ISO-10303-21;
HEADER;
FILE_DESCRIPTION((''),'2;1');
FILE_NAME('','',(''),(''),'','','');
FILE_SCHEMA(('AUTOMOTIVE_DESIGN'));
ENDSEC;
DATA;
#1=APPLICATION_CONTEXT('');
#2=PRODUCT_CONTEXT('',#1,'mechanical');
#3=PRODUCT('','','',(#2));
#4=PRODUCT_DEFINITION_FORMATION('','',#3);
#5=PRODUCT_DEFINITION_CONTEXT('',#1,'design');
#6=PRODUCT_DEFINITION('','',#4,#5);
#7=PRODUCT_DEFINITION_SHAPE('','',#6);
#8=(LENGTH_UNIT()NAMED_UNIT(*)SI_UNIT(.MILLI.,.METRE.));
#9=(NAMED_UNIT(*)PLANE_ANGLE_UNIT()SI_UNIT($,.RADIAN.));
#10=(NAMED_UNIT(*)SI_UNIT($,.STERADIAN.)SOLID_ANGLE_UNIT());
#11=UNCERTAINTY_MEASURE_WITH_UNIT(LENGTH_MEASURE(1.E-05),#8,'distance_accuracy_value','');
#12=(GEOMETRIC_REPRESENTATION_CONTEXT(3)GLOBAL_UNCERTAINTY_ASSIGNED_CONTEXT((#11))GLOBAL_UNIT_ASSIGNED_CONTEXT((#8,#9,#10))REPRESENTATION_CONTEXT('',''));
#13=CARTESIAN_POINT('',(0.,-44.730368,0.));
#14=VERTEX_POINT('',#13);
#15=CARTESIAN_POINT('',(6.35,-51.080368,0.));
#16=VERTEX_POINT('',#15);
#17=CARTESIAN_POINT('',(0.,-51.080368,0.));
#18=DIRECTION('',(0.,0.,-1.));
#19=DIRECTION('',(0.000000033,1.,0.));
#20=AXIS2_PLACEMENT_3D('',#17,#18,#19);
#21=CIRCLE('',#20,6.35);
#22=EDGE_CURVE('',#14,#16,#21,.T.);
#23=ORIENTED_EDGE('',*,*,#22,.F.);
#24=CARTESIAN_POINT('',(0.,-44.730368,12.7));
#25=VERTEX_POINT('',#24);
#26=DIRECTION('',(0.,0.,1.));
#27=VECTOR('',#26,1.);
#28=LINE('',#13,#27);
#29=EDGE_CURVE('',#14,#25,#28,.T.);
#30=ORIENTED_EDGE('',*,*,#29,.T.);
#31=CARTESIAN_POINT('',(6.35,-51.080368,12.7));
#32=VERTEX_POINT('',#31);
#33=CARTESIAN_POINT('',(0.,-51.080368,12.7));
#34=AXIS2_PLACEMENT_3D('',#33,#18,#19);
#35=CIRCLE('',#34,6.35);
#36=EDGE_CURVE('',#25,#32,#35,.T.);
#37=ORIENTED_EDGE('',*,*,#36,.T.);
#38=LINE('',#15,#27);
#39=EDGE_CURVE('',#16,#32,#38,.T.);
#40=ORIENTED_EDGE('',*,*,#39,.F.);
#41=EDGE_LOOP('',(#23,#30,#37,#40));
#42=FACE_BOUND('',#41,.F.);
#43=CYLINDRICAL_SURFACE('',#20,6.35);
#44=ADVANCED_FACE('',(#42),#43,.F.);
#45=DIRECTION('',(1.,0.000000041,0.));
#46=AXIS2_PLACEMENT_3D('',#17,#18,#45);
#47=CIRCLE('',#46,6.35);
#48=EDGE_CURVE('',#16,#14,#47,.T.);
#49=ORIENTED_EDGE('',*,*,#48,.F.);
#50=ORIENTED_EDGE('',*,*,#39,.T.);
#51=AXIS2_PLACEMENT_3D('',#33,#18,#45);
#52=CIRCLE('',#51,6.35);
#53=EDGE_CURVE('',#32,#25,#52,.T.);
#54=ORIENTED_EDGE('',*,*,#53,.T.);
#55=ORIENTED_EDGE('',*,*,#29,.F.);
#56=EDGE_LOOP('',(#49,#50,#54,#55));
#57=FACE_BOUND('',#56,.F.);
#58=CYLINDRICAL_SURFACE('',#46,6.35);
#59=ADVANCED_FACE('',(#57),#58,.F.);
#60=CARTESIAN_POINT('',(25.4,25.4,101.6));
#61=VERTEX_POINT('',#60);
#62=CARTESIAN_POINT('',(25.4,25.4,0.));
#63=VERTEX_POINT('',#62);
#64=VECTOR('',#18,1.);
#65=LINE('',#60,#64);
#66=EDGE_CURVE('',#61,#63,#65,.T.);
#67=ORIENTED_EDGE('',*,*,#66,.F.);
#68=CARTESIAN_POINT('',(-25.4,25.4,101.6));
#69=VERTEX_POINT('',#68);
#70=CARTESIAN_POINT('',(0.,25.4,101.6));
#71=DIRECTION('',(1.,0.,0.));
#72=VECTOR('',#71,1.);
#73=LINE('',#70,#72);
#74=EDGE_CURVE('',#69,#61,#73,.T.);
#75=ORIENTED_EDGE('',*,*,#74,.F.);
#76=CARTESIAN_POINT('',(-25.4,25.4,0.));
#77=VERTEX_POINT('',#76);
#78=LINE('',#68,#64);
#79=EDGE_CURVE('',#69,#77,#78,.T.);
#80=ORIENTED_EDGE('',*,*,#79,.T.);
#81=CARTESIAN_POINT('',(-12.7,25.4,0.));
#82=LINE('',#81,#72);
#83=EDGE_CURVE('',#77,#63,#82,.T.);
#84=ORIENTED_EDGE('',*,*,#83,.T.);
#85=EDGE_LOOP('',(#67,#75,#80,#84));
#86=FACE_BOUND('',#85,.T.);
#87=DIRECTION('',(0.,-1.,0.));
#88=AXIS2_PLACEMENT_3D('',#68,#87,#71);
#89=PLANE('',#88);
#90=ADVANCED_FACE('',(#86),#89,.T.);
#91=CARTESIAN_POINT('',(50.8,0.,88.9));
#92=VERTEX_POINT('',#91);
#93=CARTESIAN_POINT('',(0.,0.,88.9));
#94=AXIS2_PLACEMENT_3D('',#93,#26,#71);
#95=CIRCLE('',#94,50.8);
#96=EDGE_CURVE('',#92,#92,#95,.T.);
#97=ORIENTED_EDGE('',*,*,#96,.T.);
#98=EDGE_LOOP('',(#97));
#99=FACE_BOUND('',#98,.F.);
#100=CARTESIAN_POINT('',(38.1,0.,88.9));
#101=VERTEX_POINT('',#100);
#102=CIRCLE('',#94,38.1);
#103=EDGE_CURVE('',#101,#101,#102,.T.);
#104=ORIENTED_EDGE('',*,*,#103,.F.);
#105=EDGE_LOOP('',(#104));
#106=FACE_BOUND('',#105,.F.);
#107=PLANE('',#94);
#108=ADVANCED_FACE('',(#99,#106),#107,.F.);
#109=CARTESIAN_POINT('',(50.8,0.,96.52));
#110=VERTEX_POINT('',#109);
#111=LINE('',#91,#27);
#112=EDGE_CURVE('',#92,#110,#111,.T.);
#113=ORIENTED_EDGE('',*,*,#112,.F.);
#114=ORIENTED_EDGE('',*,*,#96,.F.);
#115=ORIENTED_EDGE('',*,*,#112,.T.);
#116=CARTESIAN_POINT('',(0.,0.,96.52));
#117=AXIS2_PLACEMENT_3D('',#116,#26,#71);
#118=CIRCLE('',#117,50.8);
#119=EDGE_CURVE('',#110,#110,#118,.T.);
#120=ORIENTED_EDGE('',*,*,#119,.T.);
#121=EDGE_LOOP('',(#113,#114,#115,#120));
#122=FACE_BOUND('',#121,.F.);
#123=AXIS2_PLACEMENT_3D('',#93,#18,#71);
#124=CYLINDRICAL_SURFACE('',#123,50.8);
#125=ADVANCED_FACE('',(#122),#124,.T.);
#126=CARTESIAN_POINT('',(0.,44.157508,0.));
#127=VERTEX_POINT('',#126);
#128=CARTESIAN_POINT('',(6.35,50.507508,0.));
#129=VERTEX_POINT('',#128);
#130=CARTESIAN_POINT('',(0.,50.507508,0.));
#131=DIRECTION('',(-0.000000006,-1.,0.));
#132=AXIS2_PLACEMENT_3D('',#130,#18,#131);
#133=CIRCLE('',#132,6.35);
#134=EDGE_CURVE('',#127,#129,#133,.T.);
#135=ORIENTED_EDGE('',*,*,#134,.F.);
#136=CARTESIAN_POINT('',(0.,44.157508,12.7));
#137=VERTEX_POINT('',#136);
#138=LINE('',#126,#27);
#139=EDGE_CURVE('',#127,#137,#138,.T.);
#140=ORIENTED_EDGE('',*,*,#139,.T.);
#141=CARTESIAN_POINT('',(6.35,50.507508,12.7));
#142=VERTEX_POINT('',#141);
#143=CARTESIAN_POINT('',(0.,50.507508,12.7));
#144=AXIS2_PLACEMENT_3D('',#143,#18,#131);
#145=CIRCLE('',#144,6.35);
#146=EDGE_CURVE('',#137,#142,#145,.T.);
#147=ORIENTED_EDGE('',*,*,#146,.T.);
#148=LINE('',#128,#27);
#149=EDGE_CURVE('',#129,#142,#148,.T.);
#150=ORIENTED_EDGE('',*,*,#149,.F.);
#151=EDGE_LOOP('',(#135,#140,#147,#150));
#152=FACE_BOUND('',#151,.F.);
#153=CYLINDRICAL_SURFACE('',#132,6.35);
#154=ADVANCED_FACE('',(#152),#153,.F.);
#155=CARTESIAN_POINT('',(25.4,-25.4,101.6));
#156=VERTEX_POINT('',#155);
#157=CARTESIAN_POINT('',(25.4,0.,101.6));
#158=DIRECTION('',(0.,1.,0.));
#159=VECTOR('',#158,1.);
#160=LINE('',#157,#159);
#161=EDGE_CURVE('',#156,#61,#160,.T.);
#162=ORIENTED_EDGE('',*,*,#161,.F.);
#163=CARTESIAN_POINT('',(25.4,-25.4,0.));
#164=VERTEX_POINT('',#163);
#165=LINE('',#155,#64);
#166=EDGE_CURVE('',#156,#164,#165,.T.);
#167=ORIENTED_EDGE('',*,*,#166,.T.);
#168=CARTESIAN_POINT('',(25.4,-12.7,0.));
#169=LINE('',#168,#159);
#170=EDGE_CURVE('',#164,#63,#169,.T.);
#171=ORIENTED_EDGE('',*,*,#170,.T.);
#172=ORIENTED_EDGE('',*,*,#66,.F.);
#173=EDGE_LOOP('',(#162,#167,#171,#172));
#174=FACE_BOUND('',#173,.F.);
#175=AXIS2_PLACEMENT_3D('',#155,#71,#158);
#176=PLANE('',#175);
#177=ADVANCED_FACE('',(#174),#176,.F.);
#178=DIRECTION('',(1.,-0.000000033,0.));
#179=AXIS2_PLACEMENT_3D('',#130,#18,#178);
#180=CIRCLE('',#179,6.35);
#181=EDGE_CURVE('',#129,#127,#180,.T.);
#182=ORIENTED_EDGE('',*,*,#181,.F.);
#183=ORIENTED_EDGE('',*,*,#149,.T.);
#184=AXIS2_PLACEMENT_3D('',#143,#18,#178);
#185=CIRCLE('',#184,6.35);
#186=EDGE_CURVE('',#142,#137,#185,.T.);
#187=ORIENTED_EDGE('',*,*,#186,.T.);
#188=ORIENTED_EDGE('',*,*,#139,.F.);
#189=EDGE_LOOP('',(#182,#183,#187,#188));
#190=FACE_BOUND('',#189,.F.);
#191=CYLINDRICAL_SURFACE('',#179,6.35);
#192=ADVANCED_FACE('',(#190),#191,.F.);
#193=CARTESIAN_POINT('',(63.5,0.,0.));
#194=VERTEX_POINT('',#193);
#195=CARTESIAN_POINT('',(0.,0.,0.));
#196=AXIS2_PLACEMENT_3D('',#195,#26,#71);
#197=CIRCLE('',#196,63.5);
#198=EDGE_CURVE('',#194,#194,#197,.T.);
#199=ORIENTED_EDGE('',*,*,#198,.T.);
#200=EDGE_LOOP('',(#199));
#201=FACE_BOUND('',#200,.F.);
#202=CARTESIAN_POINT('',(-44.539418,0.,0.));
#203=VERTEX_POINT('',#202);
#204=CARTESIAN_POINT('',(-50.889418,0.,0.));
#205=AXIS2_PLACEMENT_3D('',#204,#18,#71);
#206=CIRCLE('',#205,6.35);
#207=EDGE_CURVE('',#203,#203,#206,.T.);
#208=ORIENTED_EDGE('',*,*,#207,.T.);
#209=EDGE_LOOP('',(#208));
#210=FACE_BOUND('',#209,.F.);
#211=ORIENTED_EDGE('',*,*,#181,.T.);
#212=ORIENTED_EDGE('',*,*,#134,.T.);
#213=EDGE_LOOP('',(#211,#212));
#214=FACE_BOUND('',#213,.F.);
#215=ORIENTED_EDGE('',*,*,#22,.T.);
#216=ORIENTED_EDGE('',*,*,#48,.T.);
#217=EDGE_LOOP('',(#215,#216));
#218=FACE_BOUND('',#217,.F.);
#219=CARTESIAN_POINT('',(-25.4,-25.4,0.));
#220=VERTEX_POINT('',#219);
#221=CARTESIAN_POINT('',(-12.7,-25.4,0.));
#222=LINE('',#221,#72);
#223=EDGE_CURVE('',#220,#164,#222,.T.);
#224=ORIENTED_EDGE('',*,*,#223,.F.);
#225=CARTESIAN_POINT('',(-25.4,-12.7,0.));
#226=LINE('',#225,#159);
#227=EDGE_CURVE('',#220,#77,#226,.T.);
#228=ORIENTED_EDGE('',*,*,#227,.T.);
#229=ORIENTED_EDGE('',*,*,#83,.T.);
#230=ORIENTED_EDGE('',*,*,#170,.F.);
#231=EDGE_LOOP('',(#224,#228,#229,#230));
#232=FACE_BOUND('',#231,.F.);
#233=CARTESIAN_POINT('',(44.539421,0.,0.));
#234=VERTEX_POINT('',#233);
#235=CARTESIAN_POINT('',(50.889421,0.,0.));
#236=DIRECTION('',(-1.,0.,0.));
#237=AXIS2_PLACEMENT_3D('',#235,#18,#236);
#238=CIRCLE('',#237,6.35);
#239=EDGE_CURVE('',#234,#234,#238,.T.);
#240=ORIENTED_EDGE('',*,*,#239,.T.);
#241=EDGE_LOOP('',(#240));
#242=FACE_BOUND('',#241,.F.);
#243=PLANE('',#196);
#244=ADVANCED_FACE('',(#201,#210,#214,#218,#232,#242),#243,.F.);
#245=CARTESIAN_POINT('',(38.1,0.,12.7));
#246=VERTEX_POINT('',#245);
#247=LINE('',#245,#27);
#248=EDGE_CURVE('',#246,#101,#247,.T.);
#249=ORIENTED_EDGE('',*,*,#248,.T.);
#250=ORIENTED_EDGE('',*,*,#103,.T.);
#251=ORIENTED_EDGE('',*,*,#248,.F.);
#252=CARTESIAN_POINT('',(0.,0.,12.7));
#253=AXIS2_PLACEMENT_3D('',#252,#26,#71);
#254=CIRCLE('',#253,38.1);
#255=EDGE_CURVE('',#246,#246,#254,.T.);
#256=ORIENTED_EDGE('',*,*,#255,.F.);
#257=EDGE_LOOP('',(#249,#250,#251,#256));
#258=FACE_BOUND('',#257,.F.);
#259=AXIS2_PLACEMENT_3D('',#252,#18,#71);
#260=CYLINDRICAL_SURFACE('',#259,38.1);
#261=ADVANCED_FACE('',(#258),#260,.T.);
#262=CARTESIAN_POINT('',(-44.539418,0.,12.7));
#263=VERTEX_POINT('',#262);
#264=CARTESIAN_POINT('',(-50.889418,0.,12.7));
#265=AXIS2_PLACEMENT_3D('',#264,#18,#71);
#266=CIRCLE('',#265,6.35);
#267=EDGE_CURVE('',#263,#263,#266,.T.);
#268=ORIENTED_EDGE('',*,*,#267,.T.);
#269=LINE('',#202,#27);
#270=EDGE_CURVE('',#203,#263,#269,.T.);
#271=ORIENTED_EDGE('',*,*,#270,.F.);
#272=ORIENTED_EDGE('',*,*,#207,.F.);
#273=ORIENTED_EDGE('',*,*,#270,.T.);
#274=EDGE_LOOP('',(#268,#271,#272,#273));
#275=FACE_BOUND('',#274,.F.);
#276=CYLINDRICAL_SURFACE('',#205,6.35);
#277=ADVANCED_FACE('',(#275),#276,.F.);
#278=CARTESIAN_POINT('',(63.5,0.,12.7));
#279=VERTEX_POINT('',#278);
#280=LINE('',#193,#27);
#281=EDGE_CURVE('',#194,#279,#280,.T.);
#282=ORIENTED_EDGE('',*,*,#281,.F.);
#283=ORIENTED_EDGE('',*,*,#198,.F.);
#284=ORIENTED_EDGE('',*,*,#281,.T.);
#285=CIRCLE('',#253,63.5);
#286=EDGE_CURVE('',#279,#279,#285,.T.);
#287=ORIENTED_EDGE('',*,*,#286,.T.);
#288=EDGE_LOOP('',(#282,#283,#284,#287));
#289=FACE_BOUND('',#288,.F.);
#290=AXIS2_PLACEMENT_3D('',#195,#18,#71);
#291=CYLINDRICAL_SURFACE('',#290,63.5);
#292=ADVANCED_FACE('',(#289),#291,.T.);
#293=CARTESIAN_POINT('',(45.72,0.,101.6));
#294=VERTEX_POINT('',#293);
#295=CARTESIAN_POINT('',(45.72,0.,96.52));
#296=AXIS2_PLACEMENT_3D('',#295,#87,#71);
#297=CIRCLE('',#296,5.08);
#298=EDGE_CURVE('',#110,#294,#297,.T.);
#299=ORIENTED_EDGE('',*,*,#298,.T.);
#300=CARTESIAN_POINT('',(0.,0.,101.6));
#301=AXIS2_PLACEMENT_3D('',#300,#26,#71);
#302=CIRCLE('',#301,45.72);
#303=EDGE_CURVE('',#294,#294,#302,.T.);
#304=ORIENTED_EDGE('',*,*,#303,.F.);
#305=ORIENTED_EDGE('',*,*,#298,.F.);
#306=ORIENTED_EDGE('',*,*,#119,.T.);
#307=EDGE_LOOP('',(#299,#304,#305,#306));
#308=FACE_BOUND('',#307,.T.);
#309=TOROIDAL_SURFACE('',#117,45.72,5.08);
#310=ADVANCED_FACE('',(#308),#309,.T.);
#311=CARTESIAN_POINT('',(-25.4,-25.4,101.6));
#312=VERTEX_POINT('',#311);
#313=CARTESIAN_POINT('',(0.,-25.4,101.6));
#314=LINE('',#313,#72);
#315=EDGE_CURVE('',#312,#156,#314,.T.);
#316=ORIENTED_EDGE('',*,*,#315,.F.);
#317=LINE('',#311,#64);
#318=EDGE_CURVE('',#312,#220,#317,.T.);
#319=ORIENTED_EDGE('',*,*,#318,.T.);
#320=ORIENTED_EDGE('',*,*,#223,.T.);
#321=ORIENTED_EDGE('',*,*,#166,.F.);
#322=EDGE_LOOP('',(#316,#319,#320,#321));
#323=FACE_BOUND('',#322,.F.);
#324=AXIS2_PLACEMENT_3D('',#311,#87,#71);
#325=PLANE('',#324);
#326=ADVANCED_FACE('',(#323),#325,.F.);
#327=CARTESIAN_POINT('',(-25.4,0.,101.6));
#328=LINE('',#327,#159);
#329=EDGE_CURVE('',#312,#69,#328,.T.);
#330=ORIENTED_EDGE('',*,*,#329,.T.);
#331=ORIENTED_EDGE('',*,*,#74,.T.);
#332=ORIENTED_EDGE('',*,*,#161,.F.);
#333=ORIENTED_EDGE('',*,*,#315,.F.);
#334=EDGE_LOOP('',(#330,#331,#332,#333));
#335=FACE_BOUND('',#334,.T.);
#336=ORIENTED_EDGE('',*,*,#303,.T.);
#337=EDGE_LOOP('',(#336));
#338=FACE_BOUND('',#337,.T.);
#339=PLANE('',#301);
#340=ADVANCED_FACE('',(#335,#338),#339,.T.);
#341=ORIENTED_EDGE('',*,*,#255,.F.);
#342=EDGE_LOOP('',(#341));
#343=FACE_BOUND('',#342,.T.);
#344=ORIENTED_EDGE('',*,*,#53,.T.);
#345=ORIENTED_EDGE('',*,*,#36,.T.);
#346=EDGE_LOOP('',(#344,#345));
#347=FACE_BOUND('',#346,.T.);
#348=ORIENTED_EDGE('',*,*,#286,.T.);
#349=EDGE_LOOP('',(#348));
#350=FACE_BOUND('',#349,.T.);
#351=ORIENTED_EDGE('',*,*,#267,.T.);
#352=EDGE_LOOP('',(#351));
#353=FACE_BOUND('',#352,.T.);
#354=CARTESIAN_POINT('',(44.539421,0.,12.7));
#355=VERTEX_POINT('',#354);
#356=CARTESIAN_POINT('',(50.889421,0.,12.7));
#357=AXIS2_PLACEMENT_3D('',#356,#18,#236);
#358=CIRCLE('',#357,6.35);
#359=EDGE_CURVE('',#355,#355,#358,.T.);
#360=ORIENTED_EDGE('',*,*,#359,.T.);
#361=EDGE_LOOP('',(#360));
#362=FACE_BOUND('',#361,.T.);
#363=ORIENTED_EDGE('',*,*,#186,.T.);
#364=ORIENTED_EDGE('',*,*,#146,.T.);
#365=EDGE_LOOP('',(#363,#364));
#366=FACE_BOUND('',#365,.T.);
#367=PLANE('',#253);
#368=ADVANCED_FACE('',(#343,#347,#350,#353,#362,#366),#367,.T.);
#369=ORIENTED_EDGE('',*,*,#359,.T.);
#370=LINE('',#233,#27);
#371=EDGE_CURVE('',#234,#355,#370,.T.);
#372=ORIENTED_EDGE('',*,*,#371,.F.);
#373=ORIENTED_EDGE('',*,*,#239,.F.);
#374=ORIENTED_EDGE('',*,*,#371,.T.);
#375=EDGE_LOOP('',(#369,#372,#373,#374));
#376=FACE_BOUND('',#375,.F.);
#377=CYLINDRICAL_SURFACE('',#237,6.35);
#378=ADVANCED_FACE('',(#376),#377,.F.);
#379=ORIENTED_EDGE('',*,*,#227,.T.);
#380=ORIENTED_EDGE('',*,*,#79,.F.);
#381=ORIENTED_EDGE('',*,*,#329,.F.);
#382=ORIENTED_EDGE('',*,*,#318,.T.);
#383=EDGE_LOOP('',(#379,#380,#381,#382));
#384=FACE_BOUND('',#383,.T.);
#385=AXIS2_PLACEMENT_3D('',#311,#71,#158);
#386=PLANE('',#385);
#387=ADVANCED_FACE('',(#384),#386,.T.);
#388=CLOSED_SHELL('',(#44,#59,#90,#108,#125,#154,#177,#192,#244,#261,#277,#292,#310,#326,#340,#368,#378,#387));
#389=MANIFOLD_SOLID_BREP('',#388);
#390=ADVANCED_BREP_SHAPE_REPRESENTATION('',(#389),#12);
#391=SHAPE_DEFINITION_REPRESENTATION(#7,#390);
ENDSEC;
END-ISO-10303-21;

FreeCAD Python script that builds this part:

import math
import FreeCAD as App
import Part
import Sketcher
Q = App.Units.Quantity


def edges_at(feature, points):
    """Names of the edges that pass closest to the given points."""
    edges = feature.Shape.Edges
    near = lambda p: min(range(len(edges)), key=lambda i: edges[i].distToShape(Part.Vertex(*p))[0])
    return sorted({f"Edge{near(p) + 1}" for p in points})


def add_polygon(sketch, points):
    """Adds a closed chain of lines whose ends are joined by coincident constraints."""
    first, n = sketch.GeometryCount, len(points)
    for a, b in zip(points, points[1:] + points[:1]):
        sketch.addGeometry(Part.LineSegment(App.Vector(*a, 0), App.Vector(*b, 0)), False)
    for i in range(n):
        sketch.addConstraint(Sketcher.Constraint("Coincident", first + i, 2, first + (i + 1) % n, 1))

doc = App.newDocument("Part")
body = doc.addObject("PartDesign::Body", "Body")

sketch1 = body.newObject("Sketcher::SketchObject", "Sketch")
sketch1.AttachmentSupport = (doc.getObject("XY_Plane"), [""])
sketch1.MapMode = "FlatFace"
sketch1.addGeometry(Part.Circle(App.Vector(0, 0, 0), App.Vector(0, 0, 1), 64), False)
sketch1.addConstraint([
    Sketcher.Constraint("Coincident", 0, 3, -1, 1),
    Sketcher.Constraint("Diameter", 0, Q("5 in")),
])
pad1 = body.newObject("PartDesign::Pad", "Pad")
pad1.Profile = sketch1
pad1.Length = Q("0.5 in")

sketch2 = body.newObject("Sketcher::SketchObject", "Sketch001")
sketch2.AttachmentSupport = (doc.getObject("XY_Plane"), [""])
sketch2.MapMode = "FlatFace"
sketch2.AttachmentOffset = App.Placement(App.Vector(0, 0, 0.5 * 25.4), App.Rotation())
sketch2.addGeometry(Part.Circle(App.Vector(0, 0, 0), App.Vector(0, 0, 1), 32), False)
sketch2.addConstraint([
    Sketcher.Constraint("Coincident", 0, 3, -1, 1),
    Sketcher.Constraint("Diameter", 0, Q("2.5 in")),
])
pocket1 = body.newObject("PartDesign::Pocket", "Pocket")
pocket1.Profile = sketch2
pocket1.Length = Q("3 in")
pocket1.Reversed = True

sketch3 = body.newObject("Sketcher::SketchObject", "Sketch002")
sketch3.AttachmentSupport = (doc.getObject("XY_Plane"), [""])
sketch3.MapMode = "FlatFace"
sketch3.AttachmentOffset = App.Placement(App.Vector(0, 0, 0.5 * 25.4), App.Rotation())
sketch3.addGeometry(Part.Circle(App.Vector(0, 0, 0), App.Vector(0, 0, 1), 38), False)
sketch3.addConstraint([
    Sketcher.Constraint("Coincident", 0, 3, -1, 1),
    Sketcher.Constraint("Diameter", 0, Q("3 in")),
])
pad2 = body.newObject("PartDesign::Pad", "Pad001")
pad2.Profile = sketch3
pad2.Length = Q("3 in")

sketch4 = body.newObject("Sketcher::SketchObject", "Sketch003")
sketch4.AttachmentSupport = (doc.getObject("XY_Plane"), [""])
sketch4.MapMode = "FlatFace"
sketch4.AttachmentOffset = App.Placement(App.Vector(0, 0, 3.5 * 25.4), App.Rotation())
sketch4.addGeometry(Part.Circle(App.Vector(0, 0, 0), App.Vector(0, 0, 1), 51), False)
sketch4.addConstraint([
    Sketcher.Constraint("Coincident", 0, 3, -1, 1),
    Sketcher.Constraint("Diameter", 0, Q("4 in")),
])
pad3 = body.newObject("PartDesign::Pad", "Pad002")
pad3.Profile = sketch4
pad3.Length = Q("0.5 in")
doc.recompute()

fillet = body.newObject("PartDesign::Fillet", "Fillet")
fillet.Base = (pad3, edges_at(pad3, [(-50.8, 0, 101.6)]))
fillet.Radius = Q("0.2 in")

sketch5 = body.newObject("Sketcher::SketchObject", "Sketch004")
sketch5.AttachmentSupport = (doc.getObject("XY_Plane"), [""])
sketch5.MapMode = "FlatFace"
sketch5.addGeometry([
    Part.Circle(App.Vector(51, 0, 0), App.Vector(0, 0, 1), 6),
    Part.ArcOfCircle(Part.Circle(App.Vector(0, 51, 0), App.Vector(0, 0, 1), 6), math.radians(-90), math.radians(0)),
    Part.ArcOfCircle(Part.Circle(App.Vector(0, 51, 0), App.Vector(0, 0, 1), 6), math.radians(0), math.radians(270)),
    Part.Circle(App.Vector(-51, 0, 0), App.Vector(0, 0, 1), 6),
    Part.ArcOfCircle(Part.Circle(App.Vector(0, -51, 0), App.Vector(0, 0, 1), 6), math.radians(90), math.radians(360)),
    Part.ArcOfCircle(Part.Circle(App.Vector(0, -51, 0), App.Vector(0, 0, 1), 6), math.radians(0), math.radians(90)),
], False)
sketch5.addConstraint([
    Sketcher.Constraint("Tangent", 1, 1, 2, 2),
    Sketcher.Constraint("Coincident", 2, 1, 1, 2),
    Sketcher.Constraint("Tangent", 4, 1, 5, 2),
    Sketcher.Constraint("Coincident", 5, 1, 4, 2),
    Sketcher.Constraint("Equal", 0, 1),
    Sketcher.Constraint("Equal", 2, 3),
    Sketcher.Constraint("Equal", 3, 4),
    Sketcher.Constraint("Symmetric", 0, 3, 3, 3, -1, 1),
    Sketcher.Constraint("PointOnObject", 0, 3, -1),
    Sketcher.Constraint("PointOnObject", 1, 3, -2),
    Sketcher.Constraint("PointOnObject", 4, 3, -2),
    Sketcher.Constraint("PointOnObject", 1, 1, -2),
    Sketcher.Constraint("PointOnObject", 4, 1, -2),
    Sketcher.Constraint("Horizontal", 1, 3, 2, 1),
    Sketcher.Constraint("Horizontal", 4, 3, 5, 1),
    Sketcher.Constraint("Diameter", 0, Q("0.5 in")),
    Sketcher.Constraint("DistanceX", -1, 1, 0, 3, 50.889421),
    Sketcher.Constraint("DistanceY", -1, 1, 1, 3, 50.507508),
    Sketcher.Constraint("DistanceY", 4, 3, -1, 1, 51.080368),
])
pocket2 = body.newObject("PartDesign::Pocket", "Pocket001")
pocket2.Profile = sketch5
pocket2.Length = Q("2 in")
pocket2.Reversed = True

sketch6 = body.newObject("Sketcher::SketchObject", "Sketch005")
sketch6.AttachmentSupport = (doc.getObject("XY_Plane"), [""])
sketch6.MapMode = "FlatFace"
sketch6.AttachmentOffset = App.Placement(App.Vector(0, 0, 4 * 25.4), App.Rotation())
add_polygon(sketch6, [(-25, 25), (-25, -25), (25, -25), (25, 25)])
sketch6.addConstraint([
    Sketcher.Constraint("Vertical", 0),
    Sketcher.Constraint("Horizontal", 1),
    Sketcher.Constraint("Vertical", 2),
    Sketcher.Constraint("Horizontal", 3),
    Sketcher.Constraint("Symmetric", 0, 2, 2, 2, -1, 1),
    Sketcher.Constraint("Equal", 3, 0),
    Sketcher.Constraint("DistanceX", 1, 1, 1, 2, Q("2 in")),
])
pocket3 = body.newObject("PartDesign::Pocket", "Pocket002")
pocket3.Profile = sketch6
pocket3.Length = Q("4.73 in")

doc.recompute()
